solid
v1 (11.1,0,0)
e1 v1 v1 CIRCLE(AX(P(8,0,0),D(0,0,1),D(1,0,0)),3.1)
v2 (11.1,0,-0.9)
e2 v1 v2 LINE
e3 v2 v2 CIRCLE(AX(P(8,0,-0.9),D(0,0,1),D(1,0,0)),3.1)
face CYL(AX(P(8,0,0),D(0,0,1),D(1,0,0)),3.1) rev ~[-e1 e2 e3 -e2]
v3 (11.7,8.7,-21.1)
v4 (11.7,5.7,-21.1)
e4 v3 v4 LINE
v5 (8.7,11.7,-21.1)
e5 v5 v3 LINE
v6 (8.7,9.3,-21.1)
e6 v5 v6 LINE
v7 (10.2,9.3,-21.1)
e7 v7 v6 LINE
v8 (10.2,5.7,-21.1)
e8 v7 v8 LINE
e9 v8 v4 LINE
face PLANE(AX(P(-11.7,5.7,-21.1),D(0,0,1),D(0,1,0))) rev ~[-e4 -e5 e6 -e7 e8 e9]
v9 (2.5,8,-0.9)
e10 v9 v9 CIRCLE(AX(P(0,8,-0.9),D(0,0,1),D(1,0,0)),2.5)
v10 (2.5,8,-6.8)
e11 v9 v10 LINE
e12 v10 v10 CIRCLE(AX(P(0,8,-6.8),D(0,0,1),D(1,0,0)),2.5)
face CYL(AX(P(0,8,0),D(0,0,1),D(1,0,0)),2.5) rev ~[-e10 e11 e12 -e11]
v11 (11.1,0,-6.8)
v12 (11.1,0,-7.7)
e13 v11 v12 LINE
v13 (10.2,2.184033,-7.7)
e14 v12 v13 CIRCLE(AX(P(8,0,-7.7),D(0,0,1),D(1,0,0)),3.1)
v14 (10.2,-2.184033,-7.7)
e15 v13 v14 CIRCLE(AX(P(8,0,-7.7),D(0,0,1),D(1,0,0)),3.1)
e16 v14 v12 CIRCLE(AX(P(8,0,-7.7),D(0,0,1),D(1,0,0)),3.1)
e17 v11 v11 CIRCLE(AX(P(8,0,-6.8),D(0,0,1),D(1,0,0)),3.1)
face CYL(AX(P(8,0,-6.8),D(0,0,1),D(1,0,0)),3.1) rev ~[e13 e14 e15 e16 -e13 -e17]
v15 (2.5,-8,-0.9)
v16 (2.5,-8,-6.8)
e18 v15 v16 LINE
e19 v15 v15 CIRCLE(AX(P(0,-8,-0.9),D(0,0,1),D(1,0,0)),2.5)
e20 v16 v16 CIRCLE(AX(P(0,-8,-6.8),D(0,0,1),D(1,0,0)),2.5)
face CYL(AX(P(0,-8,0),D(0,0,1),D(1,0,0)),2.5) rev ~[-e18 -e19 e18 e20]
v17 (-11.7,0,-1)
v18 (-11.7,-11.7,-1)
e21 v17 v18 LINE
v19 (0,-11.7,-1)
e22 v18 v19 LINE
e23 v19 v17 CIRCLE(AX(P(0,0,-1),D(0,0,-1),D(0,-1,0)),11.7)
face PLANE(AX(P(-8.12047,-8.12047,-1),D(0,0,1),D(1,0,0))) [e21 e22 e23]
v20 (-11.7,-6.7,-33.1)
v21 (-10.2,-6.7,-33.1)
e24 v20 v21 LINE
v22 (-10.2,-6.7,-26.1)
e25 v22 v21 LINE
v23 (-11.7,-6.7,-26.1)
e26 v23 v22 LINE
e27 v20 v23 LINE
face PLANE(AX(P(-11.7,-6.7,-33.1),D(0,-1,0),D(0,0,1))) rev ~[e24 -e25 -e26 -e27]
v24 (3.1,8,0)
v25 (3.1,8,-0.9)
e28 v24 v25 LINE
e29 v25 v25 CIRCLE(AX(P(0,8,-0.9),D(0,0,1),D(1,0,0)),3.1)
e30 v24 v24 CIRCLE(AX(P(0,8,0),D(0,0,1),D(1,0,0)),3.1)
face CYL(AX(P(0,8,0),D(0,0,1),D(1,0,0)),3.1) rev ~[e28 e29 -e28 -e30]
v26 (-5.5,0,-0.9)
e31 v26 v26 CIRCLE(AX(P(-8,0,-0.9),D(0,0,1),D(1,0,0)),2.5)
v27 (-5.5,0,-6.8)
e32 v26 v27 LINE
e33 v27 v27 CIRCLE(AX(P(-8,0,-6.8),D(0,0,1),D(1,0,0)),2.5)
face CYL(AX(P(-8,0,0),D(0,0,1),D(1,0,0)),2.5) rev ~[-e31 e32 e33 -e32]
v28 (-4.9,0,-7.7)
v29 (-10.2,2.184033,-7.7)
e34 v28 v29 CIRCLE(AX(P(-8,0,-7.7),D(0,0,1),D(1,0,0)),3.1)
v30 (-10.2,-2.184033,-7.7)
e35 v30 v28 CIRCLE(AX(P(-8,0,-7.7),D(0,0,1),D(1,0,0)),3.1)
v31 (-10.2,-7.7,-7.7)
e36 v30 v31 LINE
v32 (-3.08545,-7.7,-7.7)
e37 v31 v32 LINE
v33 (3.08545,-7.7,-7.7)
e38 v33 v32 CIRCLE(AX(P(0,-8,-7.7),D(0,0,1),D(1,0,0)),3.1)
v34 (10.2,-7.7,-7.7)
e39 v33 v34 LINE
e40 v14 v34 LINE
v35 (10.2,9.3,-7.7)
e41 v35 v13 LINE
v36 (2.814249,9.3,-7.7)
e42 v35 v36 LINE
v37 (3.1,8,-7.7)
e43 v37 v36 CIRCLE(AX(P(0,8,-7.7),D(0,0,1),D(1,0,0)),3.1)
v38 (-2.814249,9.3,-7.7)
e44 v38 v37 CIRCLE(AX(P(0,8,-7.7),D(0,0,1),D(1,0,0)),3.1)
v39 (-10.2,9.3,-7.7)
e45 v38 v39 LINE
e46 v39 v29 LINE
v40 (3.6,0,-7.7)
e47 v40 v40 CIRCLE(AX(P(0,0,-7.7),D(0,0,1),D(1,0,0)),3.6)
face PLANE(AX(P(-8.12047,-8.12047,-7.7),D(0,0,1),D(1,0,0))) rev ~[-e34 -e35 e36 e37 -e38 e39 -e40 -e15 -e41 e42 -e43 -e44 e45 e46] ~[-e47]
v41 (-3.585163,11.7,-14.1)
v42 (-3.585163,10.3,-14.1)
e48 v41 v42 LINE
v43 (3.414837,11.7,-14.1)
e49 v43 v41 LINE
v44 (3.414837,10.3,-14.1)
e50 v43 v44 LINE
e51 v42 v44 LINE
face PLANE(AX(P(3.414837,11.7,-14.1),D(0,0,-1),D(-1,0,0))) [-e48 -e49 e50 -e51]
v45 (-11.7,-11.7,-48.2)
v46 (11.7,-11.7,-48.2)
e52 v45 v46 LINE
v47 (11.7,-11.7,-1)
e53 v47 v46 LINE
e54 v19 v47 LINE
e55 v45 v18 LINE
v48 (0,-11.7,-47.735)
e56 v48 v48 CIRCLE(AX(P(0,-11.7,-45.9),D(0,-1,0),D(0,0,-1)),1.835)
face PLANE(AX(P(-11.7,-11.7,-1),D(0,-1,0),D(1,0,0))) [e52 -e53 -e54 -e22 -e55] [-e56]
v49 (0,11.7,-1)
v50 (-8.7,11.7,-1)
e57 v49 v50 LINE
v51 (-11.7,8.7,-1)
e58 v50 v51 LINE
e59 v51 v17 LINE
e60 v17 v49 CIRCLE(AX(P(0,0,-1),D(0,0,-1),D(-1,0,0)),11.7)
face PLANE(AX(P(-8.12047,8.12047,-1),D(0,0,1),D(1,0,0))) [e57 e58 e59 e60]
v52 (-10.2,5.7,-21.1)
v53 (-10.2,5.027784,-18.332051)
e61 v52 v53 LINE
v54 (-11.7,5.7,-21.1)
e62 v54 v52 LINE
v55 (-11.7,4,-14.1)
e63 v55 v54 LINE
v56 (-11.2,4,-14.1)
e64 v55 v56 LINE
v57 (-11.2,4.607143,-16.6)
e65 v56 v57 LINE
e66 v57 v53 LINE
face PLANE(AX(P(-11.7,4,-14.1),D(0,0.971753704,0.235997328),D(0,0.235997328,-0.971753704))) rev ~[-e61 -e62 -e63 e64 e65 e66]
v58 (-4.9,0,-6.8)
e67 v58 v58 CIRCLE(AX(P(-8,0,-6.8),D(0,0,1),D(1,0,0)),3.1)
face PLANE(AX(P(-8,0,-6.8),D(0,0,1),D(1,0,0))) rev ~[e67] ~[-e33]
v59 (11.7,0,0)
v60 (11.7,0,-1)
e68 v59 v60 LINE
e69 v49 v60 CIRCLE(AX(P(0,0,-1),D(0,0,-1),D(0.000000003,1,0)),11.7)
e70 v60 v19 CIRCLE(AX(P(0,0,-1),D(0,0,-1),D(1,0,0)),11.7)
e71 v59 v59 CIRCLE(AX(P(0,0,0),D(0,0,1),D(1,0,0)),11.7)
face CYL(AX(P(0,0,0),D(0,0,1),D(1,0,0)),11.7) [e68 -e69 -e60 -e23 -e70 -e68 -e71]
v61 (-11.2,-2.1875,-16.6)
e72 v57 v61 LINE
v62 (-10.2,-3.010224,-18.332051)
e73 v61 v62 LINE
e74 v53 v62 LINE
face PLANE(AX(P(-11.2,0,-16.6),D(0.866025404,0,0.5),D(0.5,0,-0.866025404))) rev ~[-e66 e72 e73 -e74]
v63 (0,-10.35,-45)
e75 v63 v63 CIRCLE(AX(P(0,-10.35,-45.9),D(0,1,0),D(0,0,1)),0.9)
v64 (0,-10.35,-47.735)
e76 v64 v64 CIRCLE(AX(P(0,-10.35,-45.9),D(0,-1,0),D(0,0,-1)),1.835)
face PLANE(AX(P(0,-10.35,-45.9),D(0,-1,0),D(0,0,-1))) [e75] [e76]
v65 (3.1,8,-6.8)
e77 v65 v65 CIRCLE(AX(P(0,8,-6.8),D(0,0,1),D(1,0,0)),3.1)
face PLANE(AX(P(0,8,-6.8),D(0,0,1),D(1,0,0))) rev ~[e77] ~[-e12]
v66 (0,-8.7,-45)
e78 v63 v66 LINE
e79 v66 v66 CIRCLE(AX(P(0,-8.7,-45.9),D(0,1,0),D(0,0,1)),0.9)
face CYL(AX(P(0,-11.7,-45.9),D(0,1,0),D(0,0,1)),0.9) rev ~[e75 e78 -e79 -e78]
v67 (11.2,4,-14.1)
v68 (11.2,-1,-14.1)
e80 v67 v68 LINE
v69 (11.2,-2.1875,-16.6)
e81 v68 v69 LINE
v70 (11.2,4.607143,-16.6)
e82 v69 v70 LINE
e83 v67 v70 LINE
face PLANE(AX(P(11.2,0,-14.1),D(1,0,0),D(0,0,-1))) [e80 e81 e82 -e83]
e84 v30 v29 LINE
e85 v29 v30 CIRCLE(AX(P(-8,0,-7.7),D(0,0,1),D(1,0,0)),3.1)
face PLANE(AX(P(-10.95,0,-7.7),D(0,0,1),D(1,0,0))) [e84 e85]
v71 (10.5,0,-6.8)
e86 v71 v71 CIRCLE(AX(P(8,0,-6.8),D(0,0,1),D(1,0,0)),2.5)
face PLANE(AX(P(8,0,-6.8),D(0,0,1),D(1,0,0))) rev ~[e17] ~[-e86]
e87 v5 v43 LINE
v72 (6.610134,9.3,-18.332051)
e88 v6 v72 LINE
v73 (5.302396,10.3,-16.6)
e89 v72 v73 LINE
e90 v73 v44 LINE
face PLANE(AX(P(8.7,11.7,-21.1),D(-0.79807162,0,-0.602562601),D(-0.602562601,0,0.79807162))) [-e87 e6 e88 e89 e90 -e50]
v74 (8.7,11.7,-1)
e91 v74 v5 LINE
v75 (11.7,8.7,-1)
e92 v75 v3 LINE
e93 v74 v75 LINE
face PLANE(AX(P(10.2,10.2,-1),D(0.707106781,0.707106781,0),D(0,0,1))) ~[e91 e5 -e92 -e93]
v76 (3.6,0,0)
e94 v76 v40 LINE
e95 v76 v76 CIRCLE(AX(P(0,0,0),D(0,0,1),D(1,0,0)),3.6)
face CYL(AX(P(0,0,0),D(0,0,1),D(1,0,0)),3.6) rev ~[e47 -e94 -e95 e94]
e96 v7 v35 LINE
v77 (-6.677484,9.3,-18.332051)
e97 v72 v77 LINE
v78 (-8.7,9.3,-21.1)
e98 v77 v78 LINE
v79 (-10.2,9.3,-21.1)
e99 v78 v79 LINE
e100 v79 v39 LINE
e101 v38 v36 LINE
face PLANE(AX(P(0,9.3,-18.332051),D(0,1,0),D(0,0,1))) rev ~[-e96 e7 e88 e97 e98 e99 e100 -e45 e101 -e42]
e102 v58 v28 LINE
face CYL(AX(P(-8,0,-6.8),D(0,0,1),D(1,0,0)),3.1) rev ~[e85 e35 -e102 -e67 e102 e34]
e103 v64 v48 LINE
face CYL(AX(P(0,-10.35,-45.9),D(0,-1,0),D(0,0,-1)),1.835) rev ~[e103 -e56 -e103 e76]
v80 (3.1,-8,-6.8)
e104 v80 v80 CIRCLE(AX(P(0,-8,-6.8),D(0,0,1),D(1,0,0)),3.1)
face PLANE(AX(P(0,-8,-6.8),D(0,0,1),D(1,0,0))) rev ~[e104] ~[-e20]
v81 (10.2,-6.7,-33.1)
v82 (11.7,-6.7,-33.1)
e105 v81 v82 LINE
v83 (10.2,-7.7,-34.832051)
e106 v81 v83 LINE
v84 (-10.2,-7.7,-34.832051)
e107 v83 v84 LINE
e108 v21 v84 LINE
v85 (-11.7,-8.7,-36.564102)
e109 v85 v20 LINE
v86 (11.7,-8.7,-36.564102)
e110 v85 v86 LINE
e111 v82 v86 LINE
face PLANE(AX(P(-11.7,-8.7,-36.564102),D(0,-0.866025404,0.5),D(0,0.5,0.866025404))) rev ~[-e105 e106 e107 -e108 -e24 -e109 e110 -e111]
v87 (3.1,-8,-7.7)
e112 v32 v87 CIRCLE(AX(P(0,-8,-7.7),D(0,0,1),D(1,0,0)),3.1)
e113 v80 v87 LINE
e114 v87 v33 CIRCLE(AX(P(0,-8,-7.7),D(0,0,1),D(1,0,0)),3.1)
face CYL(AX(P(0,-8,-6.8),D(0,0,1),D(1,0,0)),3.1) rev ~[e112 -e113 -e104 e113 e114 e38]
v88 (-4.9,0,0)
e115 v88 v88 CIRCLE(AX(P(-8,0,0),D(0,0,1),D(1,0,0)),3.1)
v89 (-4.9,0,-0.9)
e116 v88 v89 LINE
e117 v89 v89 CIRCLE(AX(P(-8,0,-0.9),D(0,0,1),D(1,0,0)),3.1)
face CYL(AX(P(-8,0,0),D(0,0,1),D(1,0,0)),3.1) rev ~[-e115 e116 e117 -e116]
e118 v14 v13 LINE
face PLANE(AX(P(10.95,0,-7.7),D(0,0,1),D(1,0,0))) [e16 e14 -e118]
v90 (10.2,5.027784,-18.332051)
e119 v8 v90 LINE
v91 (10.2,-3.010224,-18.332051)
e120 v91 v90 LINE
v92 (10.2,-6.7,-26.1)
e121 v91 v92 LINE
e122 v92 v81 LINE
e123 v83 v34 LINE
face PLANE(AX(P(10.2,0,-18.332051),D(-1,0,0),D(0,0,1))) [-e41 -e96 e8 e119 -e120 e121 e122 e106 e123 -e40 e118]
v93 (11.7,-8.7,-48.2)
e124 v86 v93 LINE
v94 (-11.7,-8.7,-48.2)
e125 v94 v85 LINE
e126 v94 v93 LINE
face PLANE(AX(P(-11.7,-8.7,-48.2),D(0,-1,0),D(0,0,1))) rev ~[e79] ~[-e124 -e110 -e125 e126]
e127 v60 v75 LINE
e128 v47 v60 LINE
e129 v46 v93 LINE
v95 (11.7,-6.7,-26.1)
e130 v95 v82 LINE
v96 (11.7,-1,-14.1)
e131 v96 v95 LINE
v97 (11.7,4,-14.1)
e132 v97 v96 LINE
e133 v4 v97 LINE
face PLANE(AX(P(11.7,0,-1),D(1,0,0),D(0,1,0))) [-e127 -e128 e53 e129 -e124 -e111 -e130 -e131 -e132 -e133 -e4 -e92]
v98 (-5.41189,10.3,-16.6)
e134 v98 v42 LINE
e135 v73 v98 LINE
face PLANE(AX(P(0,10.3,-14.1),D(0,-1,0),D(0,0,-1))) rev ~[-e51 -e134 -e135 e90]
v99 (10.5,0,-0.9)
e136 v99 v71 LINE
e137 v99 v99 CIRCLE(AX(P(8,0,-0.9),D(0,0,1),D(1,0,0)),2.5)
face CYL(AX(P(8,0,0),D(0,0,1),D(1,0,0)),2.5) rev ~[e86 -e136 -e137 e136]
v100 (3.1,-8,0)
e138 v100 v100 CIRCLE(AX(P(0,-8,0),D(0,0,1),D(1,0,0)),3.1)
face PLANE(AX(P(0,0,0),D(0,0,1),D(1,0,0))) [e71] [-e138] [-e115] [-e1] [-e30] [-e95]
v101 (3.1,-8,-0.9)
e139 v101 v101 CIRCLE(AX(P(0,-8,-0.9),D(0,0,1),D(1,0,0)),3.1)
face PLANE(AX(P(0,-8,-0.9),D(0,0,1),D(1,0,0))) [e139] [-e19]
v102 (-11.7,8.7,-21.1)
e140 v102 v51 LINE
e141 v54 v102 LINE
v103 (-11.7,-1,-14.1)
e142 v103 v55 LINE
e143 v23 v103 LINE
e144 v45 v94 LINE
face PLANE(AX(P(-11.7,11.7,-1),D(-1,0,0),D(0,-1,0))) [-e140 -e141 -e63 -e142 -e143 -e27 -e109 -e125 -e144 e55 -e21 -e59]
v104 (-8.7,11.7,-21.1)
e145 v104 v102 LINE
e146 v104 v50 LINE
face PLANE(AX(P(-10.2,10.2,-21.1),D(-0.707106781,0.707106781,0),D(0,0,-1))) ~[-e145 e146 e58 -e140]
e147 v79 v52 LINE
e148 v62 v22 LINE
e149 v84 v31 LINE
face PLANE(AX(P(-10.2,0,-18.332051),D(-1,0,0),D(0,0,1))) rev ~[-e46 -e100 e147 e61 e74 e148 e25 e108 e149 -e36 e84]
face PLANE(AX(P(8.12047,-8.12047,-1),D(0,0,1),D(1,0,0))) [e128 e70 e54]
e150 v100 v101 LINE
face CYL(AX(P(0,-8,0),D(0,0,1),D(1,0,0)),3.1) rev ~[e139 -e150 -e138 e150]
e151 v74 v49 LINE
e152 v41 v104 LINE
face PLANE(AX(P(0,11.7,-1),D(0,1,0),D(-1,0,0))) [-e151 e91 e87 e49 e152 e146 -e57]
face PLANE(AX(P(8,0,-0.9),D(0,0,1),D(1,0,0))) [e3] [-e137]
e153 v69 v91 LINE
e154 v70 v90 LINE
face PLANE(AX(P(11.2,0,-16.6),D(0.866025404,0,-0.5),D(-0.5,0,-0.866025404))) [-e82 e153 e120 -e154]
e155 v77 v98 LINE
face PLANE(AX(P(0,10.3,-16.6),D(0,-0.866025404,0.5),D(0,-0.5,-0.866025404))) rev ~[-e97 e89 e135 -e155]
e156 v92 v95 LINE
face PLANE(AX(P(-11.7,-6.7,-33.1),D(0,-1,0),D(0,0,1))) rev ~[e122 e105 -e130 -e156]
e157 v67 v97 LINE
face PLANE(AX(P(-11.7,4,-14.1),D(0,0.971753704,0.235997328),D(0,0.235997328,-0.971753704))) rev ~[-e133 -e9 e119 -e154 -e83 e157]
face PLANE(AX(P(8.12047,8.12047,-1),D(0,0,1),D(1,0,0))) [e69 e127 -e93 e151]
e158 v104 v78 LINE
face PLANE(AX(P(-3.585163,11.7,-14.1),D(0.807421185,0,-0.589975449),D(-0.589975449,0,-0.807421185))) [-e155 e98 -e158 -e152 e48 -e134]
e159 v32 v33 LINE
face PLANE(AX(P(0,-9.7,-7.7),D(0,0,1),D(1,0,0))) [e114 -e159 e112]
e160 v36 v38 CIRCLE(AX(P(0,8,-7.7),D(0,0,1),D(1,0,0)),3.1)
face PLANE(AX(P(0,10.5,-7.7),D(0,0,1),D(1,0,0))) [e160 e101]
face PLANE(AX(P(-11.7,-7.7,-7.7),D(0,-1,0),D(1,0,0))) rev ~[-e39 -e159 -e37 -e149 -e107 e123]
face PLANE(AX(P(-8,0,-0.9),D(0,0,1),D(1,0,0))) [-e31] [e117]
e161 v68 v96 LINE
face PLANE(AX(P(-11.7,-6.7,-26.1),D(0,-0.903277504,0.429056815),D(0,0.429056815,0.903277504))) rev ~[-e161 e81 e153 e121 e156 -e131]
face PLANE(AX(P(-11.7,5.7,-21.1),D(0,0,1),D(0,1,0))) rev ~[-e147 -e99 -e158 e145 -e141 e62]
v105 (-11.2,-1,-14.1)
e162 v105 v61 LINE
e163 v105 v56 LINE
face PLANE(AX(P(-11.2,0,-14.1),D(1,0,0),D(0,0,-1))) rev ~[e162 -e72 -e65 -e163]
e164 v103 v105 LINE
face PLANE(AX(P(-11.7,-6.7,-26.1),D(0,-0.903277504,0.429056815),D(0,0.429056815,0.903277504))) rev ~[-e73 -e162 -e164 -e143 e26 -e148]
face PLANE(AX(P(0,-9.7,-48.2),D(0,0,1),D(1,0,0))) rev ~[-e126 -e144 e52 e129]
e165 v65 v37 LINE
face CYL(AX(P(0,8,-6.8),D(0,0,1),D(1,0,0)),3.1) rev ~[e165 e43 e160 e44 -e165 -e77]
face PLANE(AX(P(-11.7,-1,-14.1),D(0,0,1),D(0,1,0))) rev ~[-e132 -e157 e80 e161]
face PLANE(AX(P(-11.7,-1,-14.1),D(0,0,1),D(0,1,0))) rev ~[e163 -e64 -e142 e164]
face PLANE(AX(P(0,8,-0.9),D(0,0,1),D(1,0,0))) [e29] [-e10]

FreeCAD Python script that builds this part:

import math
import FreeCAD as App
import Part
import Sketcher
Q = App.Units.Quantity


def edges_at(feature, points):
    """Names of the edges that pass closest to the given points."""
    edges = feature.Shape.Edges
    near = lambda p: min(range(len(edges)), key=lambda i: edges[i].distToShape(Part.Vertex(*p))[0])
    return sorted({f"Edge{near(p) + 1}" for p in points})

doc = App.newDocument("Part")
body = doc.addObject("PartDesign::Body", "Body")

# Sketch on XY plane
sketch1 = body.newObject("Sketcher::SketchObject", "Sketch")
sketch1.AttachmentSupport = (doc.getObject("XY_Plane"), [""])
sketch1.MapMode = "FlatFace"
sketch1.addGeometry(Part.Circle(App.Vector(0, 0, 0), App.Vector(0, 0, 1), 12), False)
sketch1.addConstraint([
    Sketcher.Constraint("Coincident", 0, 3, -1, 1),
    Sketcher.Constraint("Diameter", 0, 23.4),
])
pad1 = body.newObject("PartDesign::Pad", "Pad")
pad1.Profile = sketch1
pad1.Length = 7.7
pad1.Reversed = True

# Sketch on XY plane
sketch2 = body.newObject("Sketcher::SketchObject", "Sketch001")
sketch2.AttachmentSupport = (doc.getObject("XY_Plane"), [""])
sketch2.MapMode = "FlatFace"
sketch2.addGeometry([
    Part.Circle(App.Vector(-8, 0, 0), App.Vector(0, 0, 1), 2.5),
    Part.Circle(App.Vector(0, 8, 0), App.Vector(0, 0, 1), 2.5),
    Part.Circle(App.Vector(8, 0, 0), App.Vector(0, 0, 1), 2.5),
    Part.Circle(App.Vector(0, -8, 0), App.Vector(0, 0, 1), 2.5),
], False)
sketch2.addConstraint([
    Sketcher.Constraint("Equal", 0, 1),
    Sketcher.Constraint("Equal", 1, 2),
    Sketcher.Constraint("Equal", 2, 3),
    Sketcher.Constraint("Symmetric", 0, 3, 2, 3, -1, 1),
    Sketcher.Constraint("Symmetric", 1, 3, 3, 3, -1, 1),
    Sketcher.Constraint("PointOnObject", 0, 3, -1),
    Sketcher.Constraint("PointOnObject", 1, 3, -2),
    Sketcher.Constraint("Diameter", 0, 5.0),
    Sketcher.Constraint("DistanceX", 0, 3, -1, 1, 8.0),
    Sketcher.Constraint("DistanceY", -1, 1, 1, 3, 8.0),
])
pocket1 = body.newObject("PartDesign::Pocket", "Pocket")
pocket1.Profile = sketch2
pocket1.Type = "ThroughAll"

# Sketch on XY plane
sketch3 = body.newObject("Sketcher::SketchObject", "Sketch002")
sketch3.AttachmentSupport = (doc.getObject("XY_Plane"), [""])
sketch3.MapMode = "FlatFace"
sketch3.addGeometry([
    Part.Circle(App.Vector(-8, 0, 0), App.Vector(0, 0, 1), 3.1),  # 0
    Part.Circle(App.Vector(-8, 0, 0), App.Vector(0, 0, 1), 2.5),  # 1
    Part.Circle(App.Vector(0, 8, 0), App.Vector(0, 0, 1), 3.1),  # 2
    Part.Circle(App.Vector(0, 8, 0), App.Vector(0, 0, 1), 2.5),  # 3
    Part.Circle(App.Vector(8, 0, 0), App.Vector(0, 0, 1), 3.1),  # 4
    Part.Circle(App.Vector(8, 0, 0), App.Vector(0, 0, 1), 2.5),  # 5
    Part.Circle(App.Vector(0, -8, 0), App.Vector(0, 0, 1), 3.1),  # 6
    Part.Circle(App.Vector(0, -8, 0), App.Vector(0, 0, 1), 2.5),  # 7
], False)
sketch3.addConstraint([
    Sketcher.Constraint("Coincident", 1, 3, 0, 3),
    Sketcher.Constraint("Coincident", 3, 3, 2, 3),
    Sketcher.Constraint("Coincident", 5, 3, 4, 3),
    Sketcher.Constraint("Coincident", 7, 3, 6, 3),
    Sketcher.Constraint("Equal", 0, 2),
    Sketcher.Constraint("Equal", 1, 3),
    Sketcher.Constraint("Equal", 2, 4),
    Sketcher.Constraint("Equal", 3, 5),
    Sketcher.Constraint("Equal", 4, 6),
    Sketcher.Constraint("Equal", 5, 7),
    Sketcher.Constraint("Symmetric", 0, 3, 4, 3, -1, 1),
    Sketcher.Constraint("Symmetric", 2, 3, 6, 3, -1, 1),
    Sketcher.Constraint("PointOnObject", 0, 3, -1),
    Sketcher.Constraint("PointOnObject", 2, 3, -2),
    Sketcher.Constraint("Diameter", 1, 5.0),
    Sketcher.Constraint("Diameter", 0, 6.2),
    Sketcher.Constraint("DistanceX", 0, 3, -1, 1, 8.0),
    Sketcher.Constraint("DistanceY", -1, 1, 2, 3, 8.0),
])
pocket2 = body.newObject("PartDesign::Pocket", "Pocket001")
pocket2.Profile = sketch3
pocket2.Length = 0.9

# Sketch on XY plane
sketch4 = body.newObject("Sketcher::SketchObject", "Sketch003")
sketch4.AttachmentSupport = (doc.getObject("XY_Plane"), [""])
sketch4.MapMode = "FlatFace"
sketch4.AttachmentOffset = App.Placement(App.Vector(0, 0, -6.8), App.Rotation())
sketch4.addGeometry([
    Part.Circle(App.Vector(-8, 0, 0), App.Vector(0, 0, 1), 3.1),  # 0
    Part.Circle(App.Vector(-8, 0, 0), App.Vector(0, 0, 1), 2.5),  # 1
    Part.Circle(App.Vector(8, 0, 0), App.Vector(0, 0, 1), 3.1),  # 2
    Part.Circle(App.Vector(8, 0, 0), App.Vector(0, 0, 1), 2.5),  # 3
    Part.Circle(App.Vector(0, -8, 0), App.Vector(0, 0, 1), 3.1),  # 4
    Part.Circle(App.Vector(0, -8, 0), App.Vector(0, 0, 1), 2.5),  # 5
    Part.Circle(App.Vector(0, 8, 0), App.Vector(0, 0, 1), 3.1),  # 6
    Part.Circle(App.Vector(0, 8, 0), App.Vector(0, 0, 1), 2.5),  # 7
], False)
sketch4.addConstraint([
    Sketcher.Constraint("Coincident", 1, 3, 0, 3),
    Sketcher.Constraint("Coincident", 3, 3, 2, 3),
    Sketcher.Constraint("Coincident", 5, 3, 4, 3),
    Sketcher.Constraint("Coincident", 7, 3, 6, 3),
    Sketcher.Constraint("Equal", 0, 2),
    Sketcher.Constraint("Equal", 1, 3),
    Sketcher.Constraint("Equal", 2, 4),
    Sketcher.Constraint("Equal", 3, 5),
    Sketcher.Constraint("Equal", 4, 6),
    Sketcher.Constraint("Equal", 5, 7),
    Sketcher.Constraint("Symmetric", 0, 3, 2, 3, -1, 1),
    Sketcher.Constraint("Symmetric", 4, 3, 6, 3, -1, 1),
    Sketcher.Constraint("PointOnObject", 0, 3, -1),
    Sketcher.Constraint("PointOnObject", 4, 3, -2),
    Sketcher.Constraint("Diameter", 1, 5.0),
    Sketcher.Constraint("Diameter", 0, 6.2),
    Sketcher.Constraint("DistanceX", 0, 3, -1, 1, 8.0),
    Sketcher.Constraint("DistanceY", 4, 3, -1, 1, 8.0),
])
pocket3 = body.newObject("PartDesign::Pocket", "Pocket002")
pocket3.Profile = sketch4
pocket3.Length = 0.9

# Sketch on XY plane
sketch5 = body.newObject("Sketcher::SketchObject", "Sketch004")
sketch5.AttachmentSupport = (doc.getObject("XY_Plane"), [""])
sketch5.MapMode = "FlatFace"
sketch5.AttachmentOffset = App.Placement(App.Vector(0, 0, -7.7), App.Rotation())
sketch5.addGeometry([
    Part.LineSegment(App.Vector(-11.7, 11.7, 0), App.Vector(-11.7, 9.3, 0)),  # 0
    Part.LineSegment(App.Vector(-11.7, 9.3, 0), App.Vector(11.7, 9.3, 0)),  # 1
    Part.LineSegment(App.Vector(11.7, 9.3, 0), App.Vector(11.7, 11.7, 0)),  # 2
    Part.LineSegment(App.Vector(11.7, 11.7, 0), App.Vector(-11.7, 11.7, 0)),  # 3
    Part.LineSegment(App.Vector(-11.7, -7.7, 0), App.Vector(-11.7, -11.7, 0)),  # 4
    Part.LineSegment(App.Vector(-11.7, -11.7, 0), App.Vector(11.7, -11.7, 0)),  # 5
    Part.LineSegment(App.Vector(11.7, -11.7, 0), App.Vector(11.7, -7.7, 0)),  # 6
    Part.LineSegment(App.Vector(11.7, -7.7, 0), App.Vector(-11.7, -7.7, 0)),  # 7
], False)
sketch5.addConstraint([
    Sketcher.Constraint("Coincident", 0, 2, 1, 1),
    Sketcher.Constraint("Coincident", 1, 2, 2, 1),
    Sketcher.Constraint("Coincident", 2, 2, 3, 1),
    Sketcher.Constraint("Coincident", 3, 2, 0, 1),
    Sketcher.Constraint("Coincident", 4, 2, 5, 1),
    Sketcher.Constraint("Coincident", 5, 2, 6, 1),
    Sketcher.Constraint("Coincident", 6, 2, 7, 1),
    Sketcher.Constraint("Coincident", 7, 2, 4, 1),
    Sketcher.Constraint("Vertical", 0),
    Sketcher.Constraint("Horizontal", 1),
    Sketcher.Constraint("Vertical", 2),
    Sketcher.Constraint("Horizontal", 3),
    Sketcher.Constraint("Vertical", 4),
    Sketcher.Constraint("Horizontal", 5),
    Sketcher.Constraint("Vertical", 6),
    Sketcher.Constraint("Horizontal", 7),
    Sketcher.Constraint("Symmetric", 2, 2, 4, 2, -1, 1),
    Sketcher.Constraint("Vertical", 3, 2, 4, 2),
    Sketcher.Constraint("Vertical", 2, 2, 5, 2),
    Sketcher.Constraint("DistanceY", 4, 2, 4, 1, 4.0),
    Sketcher.Constraint("DistanceX", 1, 1, 1, 2, 23.4),
    Sketcher.Constraint("DistanceY", 0, 2, 0, 1, 2.4),
    Sketcher.Constraint("DistanceY", 4, 2, 0, 2, 21.0),
])
pad2 = body.newObject("PartDesign::Pad", "Pad001")
pad2.Profile = sketch5
pad2.Length = 40.5
pad2.Reversed = True

# Sketch on XY plane
sketch6 = body.newObject("Sketcher::SketchObject", "Sketch005")
sketch6.AttachmentSupport = (doc.getObject("XY_Plane"), [""])
sketch6.MapMode = "FlatFace"
sketch6.AttachmentOffset = App.Placement(App.Vector(0, 0, -7.7), App.Rotation())
sketch6.addGeometry([
    Part.LineSegment(App.Vector(-11.7, 11.7, 0), App.Vector(-11.7, -11.7, 0)),  # 0
    Part.LineSegment(App.Vector(-11.7, -11.7, 0), App.Vector(-10.2, -11.7, 0)),  # 1
    Part.LineSegment(App.Vector(-10.2, -11.7, 0), App.Vector(-10.2, 11.7, 0)),  # 2
    Part.LineSegment(App.Vector(-10.2, 11.7, 0), App.Vector(-11.7, 11.7, 0)),  # 3
    Part.LineSegment(App.Vector(10.2, 11.7, 0), App.Vector(10.2, -11.7, 0)),  # 4
    Part.LineSegment(App.Vector(10.2, -11.7, 0), App.Vector(11.7, -11.7, 0)),  # 5
    Part.LineSegment(App.Vector(11.7, -11.7, 0), App.Vector(11.7, 11.7, 0)),  # 6
    Part.LineSegment(App.Vector(11.7, 11.7, 0), App.Vector(10.2, 11.7, 0)),  # 7
], False)
sketch6.addConstraint([
    Sketcher.Constraint("Coincident", 0, 2, 1, 1),
    Sketcher.Constraint("Coincident", 1, 2, 2, 1),
    Sketcher.Constraint("Coincident", 2, 2, 3, 1),
    Sketcher.Constraint("Coincident", 3, 2, 0, 1),
    Sketcher.Constraint("Coincident", 4, 2, 5, 1),
    Sketcher.Constraint("Coincident", 5, 2, 6, 1),
    Sketcher.Constraint("Coincident", 6, 2, 7, 1),
    Sketcher.Constraint("Coincident", 7, 2, 4, 1),
    Sketcher.Constraint("Vertical", 0),
    Sketcher.Constraint("Horizontal", 1),
    Sketcher.Constraint("Vertical", 2),
    Sketcher.Constraint("Horizontal", 3),
    Sketcher.Constraint("Vertical", 4),
    Sketcher.Constraint("Horizontal", 5),
    Sketcher.Constraint("Vertical", 6),
    Sketcher.Constraint("Horizontal", 7),
    Sketcher.Constraint("Symmetric", 2, 2, 4, 2, -1, 1),
    Sketcher.Constraint("Symmetric", 0, 2, 6, 2, -1, 1),
    Sketcher.Constraint("Horizontal", 1, 2, 4, 2),
    Sketcher.Constraint("DistanceX", 1, 1, 1, 2, 1.5),
    Sketcher.Constraint("DistanceY", 0, 2, 0, 1, 23.4),
    Sketcher.Constraint("DistanceX", 0, 2, -1, 1, 11.7),
])
pad3 = body.newObject("PartDesign::Pad", "Pad002")
pad3.Profile = sketch6
pad3.Length = 40.3
pad3.Reversed = True

# Sketch on XY plane
sketch7 = body.newObject("Sketcher::SketchObject", "Sketch006")
sketch7.AttachmentSupport = (doc.getObject("XY_Plane"), [""])
sketch7.MapMode = "FlatFace"
sketch7.AttachmentOffset = App.Placement(App.Vector(0, 0, -1), App.Rotation())
sketch7.addGeometry([
    Part.LineSegment(App.Vector(0, 12, 0), App.Vector(-12, 12, 0)),  # 0
    Part.LineSegment(App.Vector(-12, 12, 0), App.Vector(-12, 0, 0)),  # 1
    Part.ArcOfCircle(Part.Circle(App.Vector(0, 0, 0), App.Vector(0, 0, 1), 12), math.radians(90), math.radians(180)),  # 2
    Part.LineSegment(App.Vector(12, 12, 0), App.Vector(0, 12, 0)),  # 3
    Part.ArcOfCircle(Part.Circle(App.Vector(0, 0, 0), App.Vector(0, 0, 1), 12), math.radians(0), math.radians(90)),  # 4
    Part.LineSegment(App.Vector(12, 0, 0), App.Vector(12, 12, 0)),  # 5
    Part.ArcOfCircle(Part.Circle(App.Vector(0, 0, 0), App.Vector(0, 0, 1), 12), math.radians(180), math.radians(270)),  # 6
    Part.LineSegment(App.Vector(-12, 0, 0), App.Vector(-12, -12, 0)),  # 7
    Part.LineSegment(App.Vector(-12, -12, 0), App.Vector(0, -12, 0)),  # 8
    Part.LineSegment(App.Vector(12, -12, 0), App.Vector(12, 0, 0)),  # 9
    Part.ArcOfCircle(Part.Circle(App.Vector(0, 0, 0), App.Vector(0, 0, 1), 12), math.radians(-90), math.radians(0)),  # 10
    Part.LineSegment(App.Vector(0, -12, 0), App.Vector(12, -12, 0)),  # 11
], False)
sketch7.addConstraint([
    Sketcher.Constraint("Coincident", 0, 2, 1, 1),
    Sketcher.Constraint("Tangent", 1, 2, 2, 2),
    Sketcher.Constraint("Tangent", 2, 1, 0, 1),
    Sketcher.Constraint("Tangent", 3, 2, 4, 2),
    Sketcher.Constraint("Tangent", 4, 1, 5, 1),
    Sketcher.Constraint("Coincident", 5, 2, 3, 1),
    Sketcher.Constraint("Tangent", 6, 1, 7, 1),
    Sketcher.Constraint("Coincident", 7, 2, 8, 1),
    Sketcher.Constraint("Tangent", 8, 2, 6, 2),
    Sketcher.Constraint("Tangent", 9, 2, 10, 2),
    Sketcher.Constraint("Tangent", 10, 1, 11, 1),
    Sketcher.Constraint("Coincident", 11, 2, 9, 1),
    Sketcher.Constraint("Horizontal", 0),
    Sketcher.Constraint("Vertical", 1),
    Sketcher.Constraint("Horizontal", 3),
    Sketcher.Constraint("Vertical", 5),
    Sketcher.Constraint("Vertical", 7),
    Sketcher.Constraint("Horizontal", 8),
    Sketcher.Constraint("Vertical", 9),
    Sketcher.Constraint("Horizontal", 11),
    Sketcher.Constraint("Coincident", 2, 3, -1, 1),
    Sketcher.Constraint("Coincident", 4, 3, -1, 1),
    Sketcher.Constraint("Coincident", 6, 3, -1, 1),
    Sketcher.Constraint("Coincident", 10, 3, -1, 1),
    Sketcher.Constraint("Equal", 2, 4),
    Sketcher.Constraint("Equal", 4, 6),
    Sketcher.Constraint("Equal", 6, 10),
    Sketcher.Constraint("Radius", 2, 11.7),
])
pad4 = body.newObject("PartDesign::Pad", "Pad003")
pad4.Profile = sketch7
pad4.Length = 6.7
pad4.Reversed = True

# Sketch on YZ plane
sketch8 = body.newObject("Sketcher::SketchObject", "Sketch007")
sketch8.AttachmentSupport = (doc.getObject("YZ_Plane"), [""])
sketch8.MapMode = "FlatFace"
sketch8.AttachmentOffset = App.Placement(App.Vector(0, 0, -11.7), App.Rotation())
sketch8.addGeometry([
    Part.LineSegment(App.Vector(11.7, -48.2, 0), App.Vector(-8.7, -48.2, 0)),  # 0
    Part.LineSegment(App.Vector(-8.7, -48.2, 0), App.Vector(-8.7, -36.6, 0)),  # 1
    Part.LineSegment(App.Vector(-8.7, -36.6, 0), App.Vector(-6.7, -33.1, 0)),  # 2
    Part.LineSegment(App.Vector(-6.7, -33.1, 0), App.Vector(-6.7, -26.1, 0)),  # 3
    Part.LineSegment(App.Vector(-6.7, -26.1, 0), App.Vector(-1, -14.1, 0)),  # 4
    Part.LineSegment(App.Vector(-1, -14.1, 0), App.Vector(4, -14.1, 0)),  # 5
    Part.LineSegment(App.Vector(4, -14.1, 0), App.Vector(5.7, -21.1, 0)),  # 6
    Part.LineSegment(App.Vector(5.7, -21.1, 0), App.Vector(11.7, -21.1, 0)),  # 7
    Part.LineSegment(App.Vector(11.7, -21.1, 0), App.Vector(11.7, -48.2, 0)),  # 8
], False)
sketch8.addConstraint([
    Sketcher.Constraint("Coincident", 0, 2, 1, 1),
    Sketcher.Constraint("Coincident", 1, 2, 2, 1),
    Sketcher.Constraint("Coincident", 2, 2, 3, 1),
    Sketcher.Constraint("Coincident", 3, 2, 4, 1),
    Sketcher.Constraint("Coincident", 4, 2, 5, 1),
    Sketcher.Constraint("Coincident", 5, 2, 6, 1),
    Sketcher.Constraint("Coincident", 6, 2, 7, 1),
    Sketcher.Constraint("Coincident", 7, 2, 8, 1),
    Sketcher.Constraint("Coincident", 8, 2, 0, 1),
    Sketcher.Constraint("Horizontal", 0),
    Sketcher.Constraint("Vertical", 1),
    Sketcher.Constraint("Vertical", 3),
    Sketcher.Constraint("Horizontal", 5),
    Sketcher.Constraint("Horizontal", 7),
    Sketcher.Constraint("Vertical", 8),
    Sketcher.Constraint("DistanceX", 5, 1, 5, 2, 5.0),
    Sketcher.Constraint("DistanceX", 7, 1, 7, 2, 6.0),
    Sketcher.Constraint("DistanceY", 3, 1, 3, 2, 7.0),
    Sketcher.Constraint("Angle", 2, Q("60 deg")),
    Sketcher.Constraint("Distance", 2, 4.0),
    Sketcher.Constraint("DistanceX", 0, 2, 0, 1, 20.4),
    Sketcher.Constraint("DistanceY", 8, 2, 8, 1, 27.1),
    Sketcher.Constraint("DistanceX", 4, 2, -1, 1, 1.0),
    Sketcher.Constraint("DistanceY", 3, 2, 4, 2, 12.0),
    Sketcher.Constraint("DistanceY", 6, 2, 5, 2, 7.0),
    Sketcher.Constraint("DistanceX", 0, 2, -1, 1, 8.7),
    Sketcher.Constraint("DistanceY", 0, 2, -1, 1, 48.2),
])
pocket4 = body.newObject("PartDesign::Pocket", "Pocket003")
pocket4.Profile = sketch8
pocket4.Type = "ThroughAll"
pocket4.Reversed = True
doc.recompute()

chamfer = body.newObject("PartDesign::Chamfer", "Chamfer")
chamfer.Base = (pocket4, edges_at(pocket4, [(-11.7, 11.7, -11.05), (11.7, 11.7, -11.05)]))
chamfer.Size = 3

# Sketch on XZ plane
sketch9 = body.newObject("Sketcher::SketchObject", "Sketch008")
sketch9.AttachmentSupport = (doc.getObject("XZ_Plane"), [""])
sketch9.MapMode = "FlatFace"
sketch9.AttachmentOffset = App.Placement(App.Vector(0, 0, -11.7), App.Rotation())
sketch9.addGeometry([
    Part.LineSegment(App.Vector(3, -14, 0), App.Vector(9, -21, 0)),
    Part.LineSegment(App.Vector(9, -21, 0), App.Vector(-9, -21, 0)),
    Part.LineSegment(App.Vector(-9, -21, 0), App.Vector(-4, -14, 0)),
    Part.LineSegment(App.Vector(-4, -14, 0), App.Vector(3, -14, 0)),
], False)
sketch9.addConstraint([
    Sketcher.Constraint("Coincident", 0, 2, 1, 1),
    Sketcher.Constraint("Coincident", 1, 2, 2, 1),
    Sketcher.Constraint("Coincident", 2, 2, 3, 1),
    Sketcher.Constraint("Coincident", 3, 2, 0, 1),
    Sketcher.Constraint("Horizontal", 1),
    Sketcher.Constraint("Horizontal", 3),
    Sketcher.Constraint("DistanceX", 3, 1, 3, 2, 7.0),
    Sketcher.Constraint("DistanceX", 1, 2, 1, 1, 17.4),
    Sketcher.Constraint("DistanceY", 1, 2, 2, 2, 7.0),
    Sketcher.Constraint("DistanceX", -1, 1, 0, 2, 8.7),
    Sketcher.Constraint("DistanceY", 0, 2, -1, 1, 21.1),
    Sketcher.Constraint("Distance", 0, 8.771143),
])
pocket5 = body.newObject("PartDesign::Pocket", "Pocket004")
pocket5.Profile = sketch9
pocket5.Type = "UpToFirst"
pocket5.Reversed = True

# Sketch on YZ plane
sketch10 = body.newObject("Sketcher::SketchObject", "Sketch009")
sketch10.AttachmentSupport = (doc.getObject("YZ_Plane"), [""])
sketch10.MapMode = "FlatFace"
sketch10.addGeometry([
    Part.LineSegment(App.Vector(10.3, -16.6, 0), App.Vector(10.3, -14.1, 0)),
    Part.LineSegment(App.Vector(10.3, -14.1, 0), App.Vector(9.3, -14.1, 0)),
    Part.LineSegment(App.Vector(9.3, -14.1, 0), App.Vector(9.3, -18.3, 0)),
    Part.LineSegment(App.Vector(9.3, -18.3, 0), App.Vector(10.3, -16.6, 0)),
], False)
sketch10.addConstraint([
    Sketcher.Constraint("Coincident", 0, 2, 1, 1),
    Sketcher.Constraint("Coincident", 1, 2, 2, 1),
    Sketcher.Constraint("Coincident", 2, 2, 3, 1),
    Sketcher.Constraint("Coincident", 3, 2, 0, 1),
    Sketcher.Constraint("Vertical", 0),
    Sketcher.Constraint("Horizontal", 1),
    Sketcher.Constraint("Vertical", 2),
    Sketcher.Constraint("DistanceX", 1, 2, 1, 1, 1.0),
    Sketcher.Constraint("Angle", 3, Q("60 deg")),
    Sketcher.Constraint("DistanceY", 0, 1, 0, 2, 2.5),
    Sketcher.Constraint("DistanceX", -1, 1, 0, 2, 10.3),
    Sketcher.Constraint("DistanceY", 0, 2, -1, 1, 14.1),
])
pad5 = body.newObject("PartDesign::Pad", "Pad004")
pad5.Profile = sketch10
pad5.Type = "UpToFirst"

# Sketch on YZ plane
sketch11 = body.newObject("Sketcher::SketchObject", "Sketch010")
sketch11.AttachmentSupport = (doc.getObject("YZ_Plane"), [""])
sketch11.MapMode = "FlatFace"
sketch11.addGeometry([
    Part.LineSegment(App.Vector(10.3, -16.6, 0), App.Vector(10.3, -14.1, 0)),
    Part.LineSegment(App.Vector(10.3, -14.1, 0), App.Vector(9.3, -14.1, 0)),
    Part.LineSegment(App.Vector(9.3, -14.1, 0), App.Vector(9.3, -18.3, 0)),
    Part.LineSegment(App.Vector(9.3, -18.3, 0), App.Vector(10.3, -16.6, 0)),
], False)
sketch11.addConstraint([
    Sketcher.Constraint("Coincident", 0, 2, 1, 1),
    Sketcher.Constraint("Coincident", 1, 2, 2, 1),
    Sketcher.Constraint("Coincident", 2, 2, 3, 1),
    Sketcher.Constraint("Coincident", 3, 2, 0, 1),
    Sketcher.Constraint("Vertical", 0),
    Sketcher.Constraint("Horizontal", 1),
    Sketcher.Constraint("Vertical", 2),
    Sketcher.Constraint("DistanceX", 1, 2, 1, 1, 1.0),
    Sketcher.Constraint("Angle", 3, Q("60 deg")),
    Sketcher.Constraint("DistanceY", 0, 1, 0, 2, 2.5),
    Sketcher.Constraint("DistanceX", -1, 1, 0, 2, 10.3),
    Sketcher.Constraint("DistanceY", 0, 2, -1, 1, 14.1),
])
pad6 = body.newObject("PartDesign::Pad", "Pad005")
pad6.Profile = sketch11
pad6.Type = "UpToFirst"
pad6.Reversed = True

# Sketch on XZ plane
sketch12 = body.newObject("Sketcher::SketchObject", "Sketch011")
sketch12.AttachmentSupport = (doc.getObject("XZ_Plane"), [""])
sketch12.MapMode = "FlatFace"
sketch12.addGeometry([
    Part.LineSegment(App.Vector(10.2, -14.1, 0), App.Vector(11.2, -14.1, 0)),
    Part.LineSegment(App.Vector(11.2, -14.1, 0), App.Vector(11.2, -16.6, 0)),
    Part.LineSegment(App.Vector(11.2, -16.6, 0), App.Vector(10.2, -18.3, 0)),
    Part.LineSegment(App.Vector(10.2, -18.3, 0), App.Vector(10.2, -14.1, 0)),
], False)
sketch12.addConstraint([
    Sketcher.Constraint("Coincident", 0, 2, 1, 1),
    Sketcher.Constraint("Coincident", 1, 2, 2, 1),
    Sketcher.Constraint("Coincident", 2, 2, 3, 1),
    Sketcher.Constraint("Coincident", 3, 2, 0, 1),
    Sketcher.Constraint("Horizontal", 0),
    Sketcher.Constraint("Vertical", 1),
    Sketcher.Constraint("Vertical", 3),
    Sketcher.Constraint("DistanceX", 0, 1, 0, 2, 1.0),
    Sketcher.Constraint("Angle", 2, Q("-120 deg")),
    Sketcher.Constraint("DistanceY", 1, 2, 1, 1, 2.5),
    Sketcher.Constraint("DistanceX", -1, 1, 0, 2, 11.2),
    Sketcher.Constraint("DistanceY", 0, 2, -1, 1, 14.1),
])
pad7 = body.newObject("PartDesign::Pad", "Pad006")
pad7.Profile = sketch12
pad7.Type = "UpToFirst"
pad7.Reversed = True

# Sketch on XZ plane
sketch13 = body.newObject("Sketcher::SketchObject", "Sketch012")
sketch13.AttachmentSupport = (doc.getObject("XZ_Plane"), [""])
sketch13.MapMode = "FlatFace"
sketch13.addGeometry([
    Part.LineSegment(App.Vector(-11.2, -14.1, 0), App.Vector(-10.2, -14.1, 0)),
    Part.LineSegment(App.Vector(-10.2, -14.1, 0), App.Vector(-10.2, -18.3, 0)),
    Part.LineSegment(App.Vector(-10.2, -18.3, 0), App.Vector(-11.2, -16.6, 0)),
    Part.LineSegment(App.Vector(-11.2, -16.6, 0), App.Vector(-11.2, -14.1, 0)),
], False)
sketch13.addConstraint([
    Sketcher.Constraint("Coincident", 0, 2, 1, 1),
    Sketcher.Constraint("Coincident", 1, 2, 2, 1),
    Sketcher.Constraint("Coincident", 2, 2, 3, 1),
    Sketcher.Constraint("Coincident", 3, 2, 0, 1),
    Sketcher.Constraint("Horizontal", 0),
    Sketcher.Constraint("Vertical", 1),
    Sketcher.Constraint("Vertical", 3),
    Sketcher.Constraint("DistanceX", 0, 1, 0, 2, 1.0),
    Sketcher.Constraint("Angle", 2, Q("120 deg")),
    Sketcher.Constraint("DistanceY", 3, 1, 3, 2, 2.5),
    Sketcher.Constraint("DistanceX", 0, 2, -1, 1, 10.2),
    Sketcher.Constraint("DistanceY", 0, 2, -1, 1, 14.1),
])
pad8 = body.newObject("PartDesign::Pad", "Pad007")
pad8.Profile = sketch13
pad8.Type = "UpToFirst"
pad8.Reversed = True

# Sketch on XZ plane
sketch14 = body.newObject("Sketcher::SketchObject", "Sketch013")
sketch14.AttachmentSupport = (doc.getObject("XZ_Plane"), [""])
sketch14.MapMode = "FlatFace"
sketch14.addGeometry([
    Part.LineSegment(App.Vector(10.2, -14.1, 0), App.Vector(11.2, -14.1, 0)),
    Part.LineSegment(App.Vector(11.2, -14.1, 0), App.Vector(11.2, -16.6, 0)),
    Part.LineSegment(App.Vector(11.2, -16.6, 0), App.Vector(10.2, -18.3, 0)),
    Part.LineSegment(App.Vector(10.2, -18.3, 0), App.Vector(10.2, -14.1, 0)),
], False)
sketch14.addConstraint([
    Sketcher.Constraint("Coincident", 0, 2, 1, 1),
    Sketcher.Constraint("Coincident", 1, 2, 2, 1),
    Sketcher.Constraint("Coincident", 2, 2, 3, 1),
    Sketcher.Constraint("Coincident", 3, 2, 0, 1),
    Sketcher.Constraint("Horizontal", 0),
    Sketcher.Constraint("Vertical", 1),
    Sketcher.Constraint("Vertical", 3),
    Sketcher.Constraint("DistanceX", 0, 1, 0, 2, 1.0),
    Sketcher.Constraint("Angle", 2, Q("-120 deg")),
    Sketcher.Constraint("DistanceY", 1, 2, 1, 1, 2.5),
    Sketcher.Constraint("DistanceX", -1, 1, 0, 2, 11.2),
    Sketcher.Constraint("DistanceY", 0, 2, -1, 1, 14.1),
])
pad9 = body.newObject("PartDesign::Pad", "Pad008")
pad9.Profile = sketch14
pad9.Type = "UpToFirst"

# Sketch on XZ plane
sketch15 = body.newObject("Sketcher::SketchObject", "Sketch014")
sketch15.AttachmentSupport = (doc.getObject("XZ_Plane"), [""])
sketch15.MapMode = "FlatFace"
sketch15.addGeometry([
    Part.LineSegment(App.Vector(-11.2, -14.1, 0), App.Vector(-10.2, -14.1, 0)),
    Part.LineSegment(App.Vector(-10.2, -14.1, 0), App.Vector(-10.2, -18.3, 0)),
    Part.LineSegment(App.Vector(-10.2, -18.3, 0), App.Vector(-11.2, -16.6, 0)),
    Part.LineSegment(App.Vector(-11.2, -16.6, 0), App.Vector(-11.2, -14.1, 0)),
], False)
sketch15.addConstraint([
    Sketcher.Constraint("Coincident", 0, 2, 1, 1),
    Sketcher.Constraint("Coincident", 1, 2, 2, 1),
    Sketcher.Constraint("Coincident", 2, 2, 3, 1),
    Sketcher.Constraint("Coincident", 3, 2, 0, 1),
    Sketcher.Constraint("Horizontal", 0),
    Sketcher.Constraint("Vertical", 1),
    Sketcher.Constraint("Vertical", 3),
    Sketcher.Constraint("DistanceX", 0, 1, 0, 2, 1.0),
    Sketcher.Constraint("Angle", 2, Q("120 deg")),
    Sketcher.Constraint("DistanceY", 3, 1, 3, 2, 2.5),
    Sketcher.Constraint("DistanceX", 0, 2, -1, 1, 10.2),
    Sketcher.Constraint("DistanceY", 0, 2, -1, 1, 14.1),
])
pad10 = body.newObject("PartDesign::Pad", "Pad009")
pad10.Profile = sketch15
pad10.Type = "UpToFirst"

# Sketch on XZ plane
sketch16 = body.newObject("Sketcher::SketchObject", "Sketch015")
sketch16.AttachmentSupport = (doc.getObject("XZ_Plane"), [""])
sketch16.MapMode = "FlatFace"
sketch16.AttachmentOffset = App.Placement(App.Vector(0, 0, 11.7), App.Rotation())
sketch16.addGeometry(Part.Circle(App.Vector(0, -45.9, 0), App.Vector(0, 0, 1), 0.9), False)
sketch16.addConstraint([
    Sketcher.Constraint("PointOnObject", 0, 3, -2),
    Sketcher.Constraint("Diameter", 0, 1.8),
    Sketcher.Constraint("DistanceY", 0, 3, -1, 1, 45.9),
])
doc.recompute()
hole = body.newObject("PartDesign::Hole", "Hole")
hole.Profile = sketch16
hole.ThreadType = "None"
hole.Diameter = 1.8
hole.DepthType = "ThroughAll"
hole.HoleCutType = "Counterbore"
hole.HoleCutDiameter = 3.67
hole.HoleCutDepth = 1.35

# Sketch on XY plane
sketch17 = body.newObject("Sketcher::SketchObject", "Sketch016")
sketch17.AttachmentSupport = (doc.getObject("XY_Plane"), [""])
sketch17.MapMode = "FlatFace"
sketch17.addGeometry(Part.Circle(App.Vector(0, 0, 0), App.Vector(0, 0, 1), 3.6), False)
sketch17.addConstraint([
    Sketcher.Constraint("Coincident", 0, 3, -1, 1),
    Sketcher.Constraint("Diameter", 0, 7.2),
])
pocket6 = body.newObject("PartDesign::Pocket", "Pocket005")
pocket6.Profile = sketch17
pocket6.Type = "UpToFirst"

doc.recompute()
